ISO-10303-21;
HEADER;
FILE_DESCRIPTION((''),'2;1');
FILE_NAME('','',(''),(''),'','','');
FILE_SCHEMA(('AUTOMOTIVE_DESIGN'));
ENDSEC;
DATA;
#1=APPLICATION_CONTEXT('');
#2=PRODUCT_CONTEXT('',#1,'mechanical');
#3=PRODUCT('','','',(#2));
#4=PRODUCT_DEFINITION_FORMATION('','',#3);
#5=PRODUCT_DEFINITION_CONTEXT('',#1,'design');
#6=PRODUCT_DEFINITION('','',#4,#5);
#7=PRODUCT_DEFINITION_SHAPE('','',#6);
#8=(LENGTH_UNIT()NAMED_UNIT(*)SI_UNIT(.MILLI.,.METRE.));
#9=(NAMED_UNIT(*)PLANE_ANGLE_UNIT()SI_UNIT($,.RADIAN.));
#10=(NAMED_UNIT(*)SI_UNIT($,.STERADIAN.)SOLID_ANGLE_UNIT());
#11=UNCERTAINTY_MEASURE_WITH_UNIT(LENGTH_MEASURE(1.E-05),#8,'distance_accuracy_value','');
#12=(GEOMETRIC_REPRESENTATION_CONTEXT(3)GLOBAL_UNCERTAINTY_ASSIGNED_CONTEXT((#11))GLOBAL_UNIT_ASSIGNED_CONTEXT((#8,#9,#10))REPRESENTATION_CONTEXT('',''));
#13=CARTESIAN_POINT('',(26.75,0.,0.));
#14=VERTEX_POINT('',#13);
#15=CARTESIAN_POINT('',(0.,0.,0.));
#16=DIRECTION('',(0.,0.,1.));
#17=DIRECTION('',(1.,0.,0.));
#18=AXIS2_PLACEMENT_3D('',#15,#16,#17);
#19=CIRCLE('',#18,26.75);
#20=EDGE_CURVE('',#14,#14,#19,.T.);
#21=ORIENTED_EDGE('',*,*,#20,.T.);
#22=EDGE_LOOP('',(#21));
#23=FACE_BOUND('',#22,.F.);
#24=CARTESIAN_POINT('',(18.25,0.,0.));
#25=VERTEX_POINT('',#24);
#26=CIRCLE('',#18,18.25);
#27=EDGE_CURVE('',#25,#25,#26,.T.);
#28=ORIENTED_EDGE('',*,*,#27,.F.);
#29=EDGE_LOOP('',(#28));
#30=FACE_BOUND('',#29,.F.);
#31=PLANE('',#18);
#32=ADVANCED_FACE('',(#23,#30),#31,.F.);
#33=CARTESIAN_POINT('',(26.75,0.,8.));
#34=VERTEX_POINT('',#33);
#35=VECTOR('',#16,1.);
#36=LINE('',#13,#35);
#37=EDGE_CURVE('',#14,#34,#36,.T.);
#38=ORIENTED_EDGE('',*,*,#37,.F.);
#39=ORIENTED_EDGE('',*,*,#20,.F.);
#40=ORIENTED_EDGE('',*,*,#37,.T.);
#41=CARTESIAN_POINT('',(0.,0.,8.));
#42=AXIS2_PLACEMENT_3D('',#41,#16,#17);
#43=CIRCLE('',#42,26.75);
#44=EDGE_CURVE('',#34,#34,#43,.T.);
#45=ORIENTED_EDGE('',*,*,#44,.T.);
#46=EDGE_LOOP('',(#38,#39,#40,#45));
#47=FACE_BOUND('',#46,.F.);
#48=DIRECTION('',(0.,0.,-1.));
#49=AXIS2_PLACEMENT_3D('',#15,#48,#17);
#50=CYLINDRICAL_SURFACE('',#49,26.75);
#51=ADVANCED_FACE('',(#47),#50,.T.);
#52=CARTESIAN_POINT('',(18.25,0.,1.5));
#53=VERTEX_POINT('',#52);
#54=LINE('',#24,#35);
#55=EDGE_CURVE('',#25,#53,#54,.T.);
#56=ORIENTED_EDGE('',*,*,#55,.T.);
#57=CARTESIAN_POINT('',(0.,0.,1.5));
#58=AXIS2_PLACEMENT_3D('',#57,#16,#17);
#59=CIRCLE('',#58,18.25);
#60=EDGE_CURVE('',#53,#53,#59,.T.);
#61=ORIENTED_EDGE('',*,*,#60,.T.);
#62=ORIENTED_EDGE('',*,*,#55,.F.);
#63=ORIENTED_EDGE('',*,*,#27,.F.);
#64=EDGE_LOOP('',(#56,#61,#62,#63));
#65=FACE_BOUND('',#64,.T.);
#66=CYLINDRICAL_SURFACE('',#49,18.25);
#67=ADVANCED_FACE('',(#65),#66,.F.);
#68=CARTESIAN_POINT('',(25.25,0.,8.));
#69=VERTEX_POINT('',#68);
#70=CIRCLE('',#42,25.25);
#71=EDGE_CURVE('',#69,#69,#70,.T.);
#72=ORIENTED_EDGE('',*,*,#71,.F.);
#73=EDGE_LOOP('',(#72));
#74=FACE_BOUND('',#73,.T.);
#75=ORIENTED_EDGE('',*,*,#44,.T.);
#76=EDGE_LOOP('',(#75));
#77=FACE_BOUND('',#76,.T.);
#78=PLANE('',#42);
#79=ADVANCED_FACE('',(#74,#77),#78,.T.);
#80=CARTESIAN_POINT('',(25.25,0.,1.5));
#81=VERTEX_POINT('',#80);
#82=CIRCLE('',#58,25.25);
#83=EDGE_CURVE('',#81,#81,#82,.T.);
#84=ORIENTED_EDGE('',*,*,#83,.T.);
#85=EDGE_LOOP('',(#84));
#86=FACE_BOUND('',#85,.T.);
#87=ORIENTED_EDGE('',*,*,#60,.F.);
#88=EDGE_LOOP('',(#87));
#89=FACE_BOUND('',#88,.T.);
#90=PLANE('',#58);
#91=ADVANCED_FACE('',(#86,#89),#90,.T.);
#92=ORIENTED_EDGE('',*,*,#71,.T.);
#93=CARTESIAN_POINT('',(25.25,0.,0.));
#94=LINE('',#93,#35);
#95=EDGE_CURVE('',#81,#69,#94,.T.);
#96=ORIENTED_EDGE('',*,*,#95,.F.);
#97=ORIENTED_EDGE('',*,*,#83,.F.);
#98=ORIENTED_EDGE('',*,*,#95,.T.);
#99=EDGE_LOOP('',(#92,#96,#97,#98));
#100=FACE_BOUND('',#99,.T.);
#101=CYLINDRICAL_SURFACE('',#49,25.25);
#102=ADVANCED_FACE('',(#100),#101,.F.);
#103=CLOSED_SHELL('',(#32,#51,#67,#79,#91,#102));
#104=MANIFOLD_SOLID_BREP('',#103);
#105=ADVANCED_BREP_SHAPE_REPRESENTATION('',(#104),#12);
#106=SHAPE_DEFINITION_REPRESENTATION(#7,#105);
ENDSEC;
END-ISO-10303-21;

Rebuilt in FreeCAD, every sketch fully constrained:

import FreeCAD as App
import Part
import Sketcher

V = App.Vector
Q = App.Units.Quantity

doc = App.newDocument("Part")
body = doc.addObject("PartDesign::Body", "Body")

# Sketch on XY plane
sketch1 = body.newObject("Sketcher::SketchObject", "Sketch")
sketch1.AttachmentSupport = (doc.getObject("XY_Plane"), [""])
sketch1.MapMode = "FlatFace"
sketch1.addGeometry([
    Part.Circle(V(0, 0, 0), V(0, 0, 1), 25),
    Part.Circle(V(0, 0, 0), V(0, 0, 1), 18),
], False)
sketch1.addConstraint([
    Sketcher.Constraint("Coincident", 0, 3, -1, 1),
    Sketcher.Constraint("Coincident", 1, 3, -1, 1),
    Sketcher.Constraint("Diameter", 0, Q("50.5 mm")),
    Sketcher.Constraint("Diameter", 1, Q("36.5 mm")),
])
pad1 = body.newObject("PartDesign::Pad", "Pad")
pad1.Profile = sketch1
pad1.Length = 1.5

# Sketch on XY plane
sketch2 = body.newObject("Sketcher::SketchObject", "Sketch001")
sketch2.AttachmentSupport = (doc.getObject("XY_Plane"), [""])
sketch2.MapMode = "FlatFace"
sketch2.addGeometry([
    Part.Circle(V(0, 0, 0), V(0, 0, 1), 27),
    Part.Circle(V(0, 0, 0), V(0, 0, 1), 25),
], False)
sketch2.addConstraint([
    Sketcher.Constraint("Coincident", 0, 3, -1, 1),
    Sketcher.Constraint("Coincident", 1, 3, -1, 1),
    Sketcher.Constraint("Diameter", 0, Q("53.5 mm")),
    Sketcher.Constraint("Diameter", 1, Q("50.5 mm")),
])
pad2 = body.newObject("PartDesign::Pad", "Pad001")
pad2.Profile = sketch2
pad2.Length = 8

doc.recompute()
